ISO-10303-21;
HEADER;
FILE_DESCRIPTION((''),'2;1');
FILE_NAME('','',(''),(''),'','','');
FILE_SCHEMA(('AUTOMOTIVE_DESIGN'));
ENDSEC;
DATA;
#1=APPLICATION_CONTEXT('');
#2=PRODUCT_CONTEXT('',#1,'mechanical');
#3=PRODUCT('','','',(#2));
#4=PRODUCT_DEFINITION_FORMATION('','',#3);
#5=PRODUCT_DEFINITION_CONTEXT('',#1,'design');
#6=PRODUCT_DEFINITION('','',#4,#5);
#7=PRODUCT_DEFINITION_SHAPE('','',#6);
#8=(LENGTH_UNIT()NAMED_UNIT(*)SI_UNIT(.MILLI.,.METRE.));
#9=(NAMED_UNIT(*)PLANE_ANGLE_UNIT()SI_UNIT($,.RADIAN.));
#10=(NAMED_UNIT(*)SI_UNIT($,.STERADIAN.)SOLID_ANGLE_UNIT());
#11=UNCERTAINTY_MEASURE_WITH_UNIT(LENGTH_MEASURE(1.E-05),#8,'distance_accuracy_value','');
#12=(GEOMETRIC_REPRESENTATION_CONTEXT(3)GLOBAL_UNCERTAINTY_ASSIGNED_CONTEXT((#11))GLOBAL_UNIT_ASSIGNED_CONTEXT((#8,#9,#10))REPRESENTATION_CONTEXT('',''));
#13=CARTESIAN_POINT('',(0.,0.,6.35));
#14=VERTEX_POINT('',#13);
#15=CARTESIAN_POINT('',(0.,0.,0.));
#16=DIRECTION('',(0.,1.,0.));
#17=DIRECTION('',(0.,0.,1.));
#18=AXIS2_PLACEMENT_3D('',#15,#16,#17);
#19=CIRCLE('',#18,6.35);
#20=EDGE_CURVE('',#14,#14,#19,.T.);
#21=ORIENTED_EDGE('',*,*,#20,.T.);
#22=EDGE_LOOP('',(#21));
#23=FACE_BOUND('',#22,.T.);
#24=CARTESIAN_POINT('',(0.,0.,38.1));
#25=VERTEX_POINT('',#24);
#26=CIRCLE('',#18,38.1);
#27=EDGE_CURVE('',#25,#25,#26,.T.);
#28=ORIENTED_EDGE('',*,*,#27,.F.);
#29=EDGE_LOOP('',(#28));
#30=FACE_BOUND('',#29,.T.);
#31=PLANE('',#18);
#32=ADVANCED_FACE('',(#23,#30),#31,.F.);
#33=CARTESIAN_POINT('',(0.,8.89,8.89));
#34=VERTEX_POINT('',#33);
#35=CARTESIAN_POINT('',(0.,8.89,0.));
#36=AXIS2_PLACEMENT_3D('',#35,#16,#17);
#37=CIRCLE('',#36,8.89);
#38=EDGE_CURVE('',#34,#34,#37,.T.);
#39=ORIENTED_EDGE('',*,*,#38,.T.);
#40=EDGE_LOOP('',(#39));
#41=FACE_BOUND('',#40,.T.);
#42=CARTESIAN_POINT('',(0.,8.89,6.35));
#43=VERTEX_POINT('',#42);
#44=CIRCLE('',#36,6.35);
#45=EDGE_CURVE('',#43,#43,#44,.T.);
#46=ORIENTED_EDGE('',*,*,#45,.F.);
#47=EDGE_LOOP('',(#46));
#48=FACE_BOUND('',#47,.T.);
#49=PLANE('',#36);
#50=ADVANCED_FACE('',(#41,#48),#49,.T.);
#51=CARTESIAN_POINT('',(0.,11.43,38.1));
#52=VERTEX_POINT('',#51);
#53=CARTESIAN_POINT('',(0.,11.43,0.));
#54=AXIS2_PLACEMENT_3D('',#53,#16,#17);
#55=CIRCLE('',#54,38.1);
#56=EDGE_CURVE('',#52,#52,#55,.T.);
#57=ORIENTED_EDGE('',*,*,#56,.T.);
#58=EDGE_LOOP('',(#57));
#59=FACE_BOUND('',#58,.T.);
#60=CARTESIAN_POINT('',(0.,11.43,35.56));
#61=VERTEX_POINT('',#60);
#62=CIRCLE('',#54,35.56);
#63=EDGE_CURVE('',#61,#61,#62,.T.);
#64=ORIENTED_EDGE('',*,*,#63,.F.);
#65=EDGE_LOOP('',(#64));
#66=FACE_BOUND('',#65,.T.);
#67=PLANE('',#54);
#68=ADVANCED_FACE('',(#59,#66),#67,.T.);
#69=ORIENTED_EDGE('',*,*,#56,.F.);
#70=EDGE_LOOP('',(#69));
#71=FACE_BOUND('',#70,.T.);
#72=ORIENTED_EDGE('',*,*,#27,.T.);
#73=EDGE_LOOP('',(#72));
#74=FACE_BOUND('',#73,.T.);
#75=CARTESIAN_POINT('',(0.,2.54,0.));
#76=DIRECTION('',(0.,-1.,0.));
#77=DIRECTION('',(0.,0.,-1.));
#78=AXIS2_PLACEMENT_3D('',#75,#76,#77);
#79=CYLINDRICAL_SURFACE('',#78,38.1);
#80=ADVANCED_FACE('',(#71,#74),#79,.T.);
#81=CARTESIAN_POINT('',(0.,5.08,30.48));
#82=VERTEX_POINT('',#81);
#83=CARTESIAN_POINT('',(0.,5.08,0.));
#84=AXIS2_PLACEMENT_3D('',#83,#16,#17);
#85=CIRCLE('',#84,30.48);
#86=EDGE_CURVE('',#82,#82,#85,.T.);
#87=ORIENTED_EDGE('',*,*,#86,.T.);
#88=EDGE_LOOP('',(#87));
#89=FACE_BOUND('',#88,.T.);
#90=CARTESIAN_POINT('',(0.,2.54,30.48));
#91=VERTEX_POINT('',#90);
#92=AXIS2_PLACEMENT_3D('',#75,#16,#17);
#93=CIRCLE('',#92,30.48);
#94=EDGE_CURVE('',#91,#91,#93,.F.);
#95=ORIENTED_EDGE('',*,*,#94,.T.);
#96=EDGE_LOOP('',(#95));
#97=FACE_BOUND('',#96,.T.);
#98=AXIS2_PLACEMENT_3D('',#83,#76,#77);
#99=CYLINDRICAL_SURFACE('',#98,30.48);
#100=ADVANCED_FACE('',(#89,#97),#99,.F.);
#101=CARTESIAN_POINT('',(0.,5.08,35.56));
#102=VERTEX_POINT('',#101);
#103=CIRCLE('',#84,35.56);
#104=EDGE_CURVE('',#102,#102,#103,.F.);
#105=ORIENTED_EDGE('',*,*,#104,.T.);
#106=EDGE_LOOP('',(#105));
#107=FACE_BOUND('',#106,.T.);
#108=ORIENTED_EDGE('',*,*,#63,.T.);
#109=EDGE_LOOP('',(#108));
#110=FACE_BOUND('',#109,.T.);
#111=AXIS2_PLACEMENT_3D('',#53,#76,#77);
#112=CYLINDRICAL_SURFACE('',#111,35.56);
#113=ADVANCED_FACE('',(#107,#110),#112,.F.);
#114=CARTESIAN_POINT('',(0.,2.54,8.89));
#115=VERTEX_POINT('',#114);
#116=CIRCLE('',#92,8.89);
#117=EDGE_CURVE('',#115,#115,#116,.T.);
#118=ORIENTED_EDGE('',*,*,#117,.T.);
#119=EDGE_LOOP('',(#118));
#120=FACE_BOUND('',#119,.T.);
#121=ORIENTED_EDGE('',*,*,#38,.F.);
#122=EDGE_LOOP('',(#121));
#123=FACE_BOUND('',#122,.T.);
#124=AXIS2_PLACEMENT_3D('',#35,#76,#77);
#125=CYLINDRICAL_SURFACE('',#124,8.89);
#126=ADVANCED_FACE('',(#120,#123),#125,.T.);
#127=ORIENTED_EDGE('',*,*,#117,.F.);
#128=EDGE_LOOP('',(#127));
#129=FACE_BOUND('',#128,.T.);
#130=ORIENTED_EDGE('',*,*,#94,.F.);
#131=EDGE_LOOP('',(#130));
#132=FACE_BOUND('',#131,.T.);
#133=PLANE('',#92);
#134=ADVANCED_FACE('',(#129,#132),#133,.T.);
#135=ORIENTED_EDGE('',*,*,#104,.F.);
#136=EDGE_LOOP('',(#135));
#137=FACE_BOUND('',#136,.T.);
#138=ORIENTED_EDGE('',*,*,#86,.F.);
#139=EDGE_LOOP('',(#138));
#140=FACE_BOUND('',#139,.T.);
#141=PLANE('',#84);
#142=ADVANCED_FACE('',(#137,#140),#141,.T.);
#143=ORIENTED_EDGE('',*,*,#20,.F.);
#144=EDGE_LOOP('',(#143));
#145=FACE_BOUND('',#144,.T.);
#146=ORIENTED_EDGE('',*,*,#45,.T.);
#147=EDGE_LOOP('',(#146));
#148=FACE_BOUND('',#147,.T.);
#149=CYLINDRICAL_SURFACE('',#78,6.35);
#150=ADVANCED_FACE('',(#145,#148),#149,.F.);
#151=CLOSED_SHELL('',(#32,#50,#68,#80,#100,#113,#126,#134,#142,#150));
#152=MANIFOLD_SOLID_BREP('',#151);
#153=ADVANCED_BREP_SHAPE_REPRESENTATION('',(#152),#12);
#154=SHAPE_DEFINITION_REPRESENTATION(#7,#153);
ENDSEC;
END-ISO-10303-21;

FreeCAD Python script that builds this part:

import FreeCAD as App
import Part
import Sketcher
Q = App.Units.Quantity

doc = App.newDocument("Part")
body = doc.addObject("PartDesign::Body", "Body")

# Sketch on XZ plane
sketch1 = body.newObject("Sketcher::SketchObject", "Sketch")
sketch1.AttachmentSupport = (doc.getObject("XZ_Plane"), [""])
sketch1.MapMode = "FlatFace"
sketch1.addGeometry([
    Part.Circle(App.Vector(0, 0, 0), App.Vector(0, 0, 1), 38),
    Part.Circle(App.Vector(0, 0, 0), App.Vector(0, 0, 1), 6),
], False)
sketch1.addConstraint([
    Sketcher.Constraint("Coincident", 0, 3, -1, 1),
    Sketcher.Constraint("Coincident", 1, 3, -1, 1),
    Sketcher.Constraint("Diameter", 0, Q("3 in")),
    Sketcher.Constraint("Diameter", 1, Q("0.5 in")),
])
pad1 = body.newObject("PartDesign::Pad", "Pad")
pad1.Profile = sketch1
pad1.Length = Q("0.1 in")
pad1.Reversed = True

# Sketch on XZ plane
sketch2 = body.newObject("Sketcher::SketchObject", "Sketch001")
sketch2.AttachmentSupport = (doc.getObject("XZ_Plane"), [""])
sketch2.MapMode = "FlatFace"
sketch2.AttachmentOffset = App.Placement(App.Vector(0, 0, -0.1 * 25.4), App.Rotation())
sketch2.addGeometry([
    Part.Circle(App.Vector(0, 0, 0), App.Vector(0, 0, 1), 9),
    Part.Circle(App.Vector(0, 0, 0), App.Vector(0, 0, 1), 6),
], False)
sketch2.addConstraint([
    Sketcher.Constraint("Coincident", 0, 3, -1, 1),
    Sketcher.Constraint("Coincident", 1, 3, -1, 1),
    Sketcher.Constraint("Diameter", 0, Q("0.7 in")),
    Sketcher.Constraint("Diameter", 1, Q("0.5 in")),
])
pad2 = body.newObject("PartDesign::Pad", "Pad001")
pad2.Profile = sketch2
pad2.Length = Q("0.25 in")
pad2.Reversed = True

# Sketch on XZ plane
sketch3 = body.newObject("Sketcher::SketchObject", "Sketch002")
sketch3.AttachmentSupport = (doc.getObject("XZ_Plane"), [""])
sketch3.MapMode = "FlatFace"
sketch3.AttachmentOffset = App.Placement(App.Vector(0, 0, -0.1 * 25.4), App.Rotation())
sketch3.addGeometry([
    Part.Circle(App.Vector(0, 0, 0), App.Vector(0, 0, 1), 38),
    Part.Circle(App.Vector(0, 0, 0), App.Vector(0, 0, 1), 30),
], False)
sketch3.addConstraint([
    Sketcher.Constraint("Coincident", 0, 3, -1, 1),
    Sketcher.Constraint("Coincident", 1, 3, -1, 1),
    Sketcher.Constraint("Diameter", 0, Q("3 in")),
    Sketcher.Constraint("Diameter", 1, Q("2.4 in")),
])
pad3 = body.newObject("PartDesign::Pad", "Pad002")
pad3.Profile = sketch3
pad3.Length = Q("0.1 in")
pad3.Reversed = True

# Sketch on XZ plane
sketch4 = body.newObject("Sketcher::SketchObject", "Sketch003")
sketch4.AttachmentSupport = (doc.getObject("XZ_Plane"), [""])
sketch4.MapMode = "FlatFace"
sketch4.AttachmentOffset = App.Placement(App.Vector(0, 0, -0.2 * 25.4), App.Rotation())
sketch4.addGeometry([
    Part.Circle(App.Vector(0, 0, 0), App.Vector(0, 0, 1), 38),
    Part.Circle(App.Vector(0, 0, 0), App.Vector(0, 0, 1), 36),
], False)
sketch4.addConstraint([
    Sketcher.Constraint("Coincident", 0, 3, -1, 1),
    Sketcher.Constraint("Coincident", 1, 3, -1, 1),
    Sketcher.Constraint("Diameter", 0, Q("3 in")),
    Sketcher.Constraint("Diameter", 1, Q("2.8 in")),
])
pad4 = body.newObject("PartDesign::Pad", "Pad003")
pad4.Profile = sketch4
pad4.Length = Q("0.25 in")
pad4.Reversed = True

doc.recompute()
